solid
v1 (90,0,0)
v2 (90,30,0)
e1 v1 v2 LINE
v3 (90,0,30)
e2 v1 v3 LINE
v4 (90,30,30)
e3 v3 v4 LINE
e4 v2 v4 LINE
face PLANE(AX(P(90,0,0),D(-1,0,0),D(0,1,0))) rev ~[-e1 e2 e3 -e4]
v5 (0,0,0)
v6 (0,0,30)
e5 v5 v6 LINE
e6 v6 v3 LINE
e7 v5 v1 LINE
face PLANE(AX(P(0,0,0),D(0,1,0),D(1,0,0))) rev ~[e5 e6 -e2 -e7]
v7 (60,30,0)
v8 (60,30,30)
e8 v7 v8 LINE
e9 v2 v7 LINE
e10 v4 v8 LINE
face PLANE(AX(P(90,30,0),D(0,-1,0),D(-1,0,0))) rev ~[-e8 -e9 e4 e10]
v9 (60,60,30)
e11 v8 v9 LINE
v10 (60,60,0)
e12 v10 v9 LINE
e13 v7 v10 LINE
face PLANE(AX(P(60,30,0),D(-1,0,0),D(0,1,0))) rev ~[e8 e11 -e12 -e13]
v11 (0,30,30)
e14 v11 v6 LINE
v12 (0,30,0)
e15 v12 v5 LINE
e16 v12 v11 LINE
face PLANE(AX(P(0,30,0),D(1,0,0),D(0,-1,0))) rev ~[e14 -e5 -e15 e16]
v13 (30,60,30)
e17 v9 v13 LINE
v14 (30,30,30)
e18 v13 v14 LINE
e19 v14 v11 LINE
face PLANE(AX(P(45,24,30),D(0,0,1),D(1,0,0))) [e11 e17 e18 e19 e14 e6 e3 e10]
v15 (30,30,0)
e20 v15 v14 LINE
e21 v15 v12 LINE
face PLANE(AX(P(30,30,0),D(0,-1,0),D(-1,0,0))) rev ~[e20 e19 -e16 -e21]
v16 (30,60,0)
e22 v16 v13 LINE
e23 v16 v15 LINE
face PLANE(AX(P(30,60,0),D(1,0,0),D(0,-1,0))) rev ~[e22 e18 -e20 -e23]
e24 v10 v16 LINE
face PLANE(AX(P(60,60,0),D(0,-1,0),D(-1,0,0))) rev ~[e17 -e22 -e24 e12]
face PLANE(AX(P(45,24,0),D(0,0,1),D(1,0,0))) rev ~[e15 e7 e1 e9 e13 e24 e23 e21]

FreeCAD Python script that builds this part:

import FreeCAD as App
import Part
import Sketcher

V = App.Vector
Q = App.Units.Quantity

doc = App.newDocument("Part")
body = doc.addObject("PartDesign::Body", "Body")

# Sketch on XY plane
sketch1 = body.newObject("Sketcher::SketchObject", "Sketch")
sketch1.AttachmentSupport = (doc.getObject("XY_Plane"), [""])
sketch1.MapMode = "FlatFace"
sketch1.addGeometry(Part.LineSegment(V(0, 0, 0), V(90, 0, 0)), False)
sketch1.addGeometry(Part.LineSegment(V(90, 0, 0), V(90, 30, 0)), False)
sketch1.addGeometry(Part.LineSegment(V(90, 30, 0), V(60, 30, 0)), False)
sketch1.addGeometry(Part.LineSegment(V(60, 30, 0), V(60, 60, 0)), False)
sketch1.addGeometry(Part.LineSegment(V(60, 60, 0), V(30, 60, 0)), False)
sketch1.addGeometry(Part.LineSegment(V(30, 60, 0), V(30, 30, 0)), False)
sketch1.addGeometry(Part.LineSegment(V(30, 30, 0), V(0, 30, 0)), False)
sketch1.addGeometry(Part.LineSegment(V(0, 30, 0), V(0, 0, 0)), False)
sketch1.addConstraint(Sketcher.Constraint("Coincident", 0, 2, 1, 1))
sketch1.addConstraint(Sketcher.Constraint("Coincident", 1, 2, 2, 1))
sketch1.addConstraint(Sketcher.Constraint("Coincident", 2, 2, 3, 1))
sketch1.addConstraint(Sketcher.Constraint("Coincident", 3, 2, 4, 1))
sketch1.addConstraint(Sketcher.Constraint("Coincident", 4, 2, 5, 1))
sketch1.addConstraint(Sketcher.Constraint("Coincident", 5, 2, 6, 1))
sketch1.addConstraint(Sketcher.Constraint("Coincident", 6, 2, 7, 1))
sketch1.addConstraint(Sketcher.Constraint("Coincident", 7, 2, 0, 1))
sketch1.addConstraint(Sketcher.Constraint("Horizontal", 0))
sketch1.addConstraint(Sketcher.Constraint("Vertical", 1))
sketch1.addConstraint(Sketcher.Constraint("Horizontal", 2))
sketch1.addConstraint(Sketcher.Constraint("Vertical", 3))
sketch1.addConstraint(Sketcher.Constraint("Horizontal", 4))
sketch1.addConstraint(Sketcher.Constraint("Vertical", 5))
sketch1.addConstraint(Sketcher.Constraint("Horizontal", 6))
sketch1.addConstraint(Sketcher.Constraint("Vertical", 7))
sketch1.addConstraint(Sketcher.Constraint("Coincident", 7, 2, -1, 1))
sketch1.addConstraint(Sketcher.Constraint("Horizontal", 2, 2, 5, 2))
sketch1.addConstraint(Sketcher.Constraint("Equal", 2, 4))
sketch1.addConstraint(Sketcher.Constraint("Equal", 4, 6))
sketch1.addConstraint(Sketcher.Constraint("Equal", 6, 1))
sketch1.addConstraint(Sketcher.Constraint("Equal", 1, 3))
sketch1.addConstraint(Sketcher.Constraint("DistanceX", 0, 1, 0, 2, Q("90 mm")))
pad1 = body.newObject("PartDesign::Pad", "Pad")
pad1.Profile = sketch1
pad1.Length = 30

doc.recompute()
